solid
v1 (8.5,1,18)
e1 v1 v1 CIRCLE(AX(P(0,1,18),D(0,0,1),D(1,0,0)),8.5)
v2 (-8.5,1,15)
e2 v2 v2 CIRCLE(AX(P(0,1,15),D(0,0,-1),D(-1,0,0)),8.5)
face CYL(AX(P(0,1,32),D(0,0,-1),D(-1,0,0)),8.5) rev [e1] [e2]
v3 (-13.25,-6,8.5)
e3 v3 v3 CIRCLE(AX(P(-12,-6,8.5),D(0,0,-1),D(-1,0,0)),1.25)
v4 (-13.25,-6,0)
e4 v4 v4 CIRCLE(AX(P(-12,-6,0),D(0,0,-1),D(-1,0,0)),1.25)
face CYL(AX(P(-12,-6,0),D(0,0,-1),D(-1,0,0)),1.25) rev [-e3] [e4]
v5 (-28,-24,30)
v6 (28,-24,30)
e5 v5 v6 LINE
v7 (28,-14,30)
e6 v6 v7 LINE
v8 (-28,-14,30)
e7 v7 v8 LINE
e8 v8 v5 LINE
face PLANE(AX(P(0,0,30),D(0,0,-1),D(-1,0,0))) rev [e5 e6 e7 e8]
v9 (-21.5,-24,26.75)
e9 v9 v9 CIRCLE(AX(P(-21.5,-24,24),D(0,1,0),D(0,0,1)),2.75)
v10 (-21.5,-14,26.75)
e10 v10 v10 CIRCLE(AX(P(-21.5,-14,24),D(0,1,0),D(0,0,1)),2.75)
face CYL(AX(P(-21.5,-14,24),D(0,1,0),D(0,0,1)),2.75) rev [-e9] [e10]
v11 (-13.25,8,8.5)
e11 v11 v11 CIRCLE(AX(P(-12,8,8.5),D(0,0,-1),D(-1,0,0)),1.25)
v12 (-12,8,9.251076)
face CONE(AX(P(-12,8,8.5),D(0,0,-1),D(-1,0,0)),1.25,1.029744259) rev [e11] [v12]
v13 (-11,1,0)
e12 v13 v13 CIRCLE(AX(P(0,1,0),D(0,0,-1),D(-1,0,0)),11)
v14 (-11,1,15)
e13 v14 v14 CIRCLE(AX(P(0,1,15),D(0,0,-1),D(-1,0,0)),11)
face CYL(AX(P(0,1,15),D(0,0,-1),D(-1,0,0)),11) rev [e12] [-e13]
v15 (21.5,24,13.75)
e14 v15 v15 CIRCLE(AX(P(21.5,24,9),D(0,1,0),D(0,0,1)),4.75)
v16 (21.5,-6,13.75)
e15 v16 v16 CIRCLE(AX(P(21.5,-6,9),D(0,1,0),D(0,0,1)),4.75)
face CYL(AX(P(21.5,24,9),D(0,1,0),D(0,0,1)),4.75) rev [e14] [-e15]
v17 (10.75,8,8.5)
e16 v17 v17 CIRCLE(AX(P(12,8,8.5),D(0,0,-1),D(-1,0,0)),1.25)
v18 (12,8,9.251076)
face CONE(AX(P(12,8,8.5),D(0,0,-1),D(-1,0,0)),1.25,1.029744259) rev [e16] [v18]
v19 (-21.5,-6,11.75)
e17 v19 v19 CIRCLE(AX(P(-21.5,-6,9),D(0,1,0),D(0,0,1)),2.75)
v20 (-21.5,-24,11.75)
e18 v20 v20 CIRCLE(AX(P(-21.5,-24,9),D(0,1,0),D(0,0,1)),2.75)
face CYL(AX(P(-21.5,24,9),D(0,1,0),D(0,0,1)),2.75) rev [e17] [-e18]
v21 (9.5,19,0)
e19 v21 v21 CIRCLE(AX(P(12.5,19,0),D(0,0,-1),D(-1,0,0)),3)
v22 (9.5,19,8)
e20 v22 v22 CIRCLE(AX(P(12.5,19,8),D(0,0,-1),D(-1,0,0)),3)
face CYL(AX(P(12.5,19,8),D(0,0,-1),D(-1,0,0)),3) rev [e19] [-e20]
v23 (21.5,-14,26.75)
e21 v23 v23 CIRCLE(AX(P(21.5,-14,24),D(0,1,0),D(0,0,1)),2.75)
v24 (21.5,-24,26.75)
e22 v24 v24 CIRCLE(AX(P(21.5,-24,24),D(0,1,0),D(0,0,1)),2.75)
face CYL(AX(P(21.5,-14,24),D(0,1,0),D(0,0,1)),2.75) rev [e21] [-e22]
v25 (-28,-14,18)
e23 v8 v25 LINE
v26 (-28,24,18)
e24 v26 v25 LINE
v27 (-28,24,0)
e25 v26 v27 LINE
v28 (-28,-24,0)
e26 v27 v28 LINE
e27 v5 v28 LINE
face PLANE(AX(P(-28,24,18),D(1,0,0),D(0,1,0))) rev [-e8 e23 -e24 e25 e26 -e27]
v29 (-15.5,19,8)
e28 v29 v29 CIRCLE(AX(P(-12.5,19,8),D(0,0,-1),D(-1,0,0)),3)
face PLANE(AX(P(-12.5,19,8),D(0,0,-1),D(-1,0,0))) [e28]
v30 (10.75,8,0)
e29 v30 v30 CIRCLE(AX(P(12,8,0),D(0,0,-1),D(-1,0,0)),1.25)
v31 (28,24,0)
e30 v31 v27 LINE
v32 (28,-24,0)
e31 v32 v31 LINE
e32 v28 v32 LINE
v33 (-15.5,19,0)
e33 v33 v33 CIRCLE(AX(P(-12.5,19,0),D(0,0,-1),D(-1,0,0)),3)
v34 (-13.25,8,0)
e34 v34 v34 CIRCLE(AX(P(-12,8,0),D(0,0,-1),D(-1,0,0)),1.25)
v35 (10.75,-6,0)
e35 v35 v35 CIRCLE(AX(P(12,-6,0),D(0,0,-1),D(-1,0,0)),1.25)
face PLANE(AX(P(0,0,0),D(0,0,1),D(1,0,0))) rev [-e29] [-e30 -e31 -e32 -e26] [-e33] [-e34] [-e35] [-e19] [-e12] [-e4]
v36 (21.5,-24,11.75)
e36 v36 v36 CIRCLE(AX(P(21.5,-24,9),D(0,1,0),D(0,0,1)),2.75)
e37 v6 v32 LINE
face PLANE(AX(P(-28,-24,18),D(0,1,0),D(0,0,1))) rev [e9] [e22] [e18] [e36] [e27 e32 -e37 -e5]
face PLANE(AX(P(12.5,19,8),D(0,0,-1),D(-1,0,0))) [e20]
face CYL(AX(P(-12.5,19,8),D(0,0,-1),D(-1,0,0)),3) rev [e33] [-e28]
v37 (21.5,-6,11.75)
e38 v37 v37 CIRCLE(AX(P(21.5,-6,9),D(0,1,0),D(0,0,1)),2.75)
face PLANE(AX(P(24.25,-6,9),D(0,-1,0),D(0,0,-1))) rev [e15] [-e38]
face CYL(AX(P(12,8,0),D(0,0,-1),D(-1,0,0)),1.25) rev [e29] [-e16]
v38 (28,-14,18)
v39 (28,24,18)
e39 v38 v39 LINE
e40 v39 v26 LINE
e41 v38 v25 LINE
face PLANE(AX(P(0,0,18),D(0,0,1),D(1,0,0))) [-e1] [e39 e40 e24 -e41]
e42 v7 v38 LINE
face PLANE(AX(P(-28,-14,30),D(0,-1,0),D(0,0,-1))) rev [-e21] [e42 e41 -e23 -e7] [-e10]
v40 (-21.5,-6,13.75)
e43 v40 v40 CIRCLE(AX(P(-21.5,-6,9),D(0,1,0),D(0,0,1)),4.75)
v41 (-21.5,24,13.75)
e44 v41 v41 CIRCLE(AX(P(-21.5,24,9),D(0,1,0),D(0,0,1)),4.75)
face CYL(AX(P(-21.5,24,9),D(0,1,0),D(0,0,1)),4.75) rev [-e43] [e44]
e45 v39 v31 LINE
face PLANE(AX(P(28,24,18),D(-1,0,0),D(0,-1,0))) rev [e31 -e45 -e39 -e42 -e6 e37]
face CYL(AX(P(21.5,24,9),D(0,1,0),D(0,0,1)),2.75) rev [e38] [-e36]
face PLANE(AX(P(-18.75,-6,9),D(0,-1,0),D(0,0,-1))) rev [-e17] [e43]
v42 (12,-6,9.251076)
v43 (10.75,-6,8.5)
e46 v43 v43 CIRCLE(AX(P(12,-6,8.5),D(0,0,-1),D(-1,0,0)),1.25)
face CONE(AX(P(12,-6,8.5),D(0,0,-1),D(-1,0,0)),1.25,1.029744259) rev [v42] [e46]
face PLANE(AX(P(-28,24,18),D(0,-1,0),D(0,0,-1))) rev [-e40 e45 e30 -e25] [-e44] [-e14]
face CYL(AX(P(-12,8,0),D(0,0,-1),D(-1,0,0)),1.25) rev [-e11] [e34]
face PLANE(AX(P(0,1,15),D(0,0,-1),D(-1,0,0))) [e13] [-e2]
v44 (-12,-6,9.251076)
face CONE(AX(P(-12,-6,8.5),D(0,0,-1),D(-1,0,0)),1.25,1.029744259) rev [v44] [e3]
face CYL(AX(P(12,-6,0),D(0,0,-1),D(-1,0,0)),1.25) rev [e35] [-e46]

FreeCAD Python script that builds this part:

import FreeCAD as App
import Part
import Sketcher
Q = App.Units.Quantity

doc = App.newDocument("Part")
body = doc.addObject("PartDesign::Body", "Body")

sketch1 = body.newObject("Sketcher::SketchObject", "Sketch")
sketch1.AttachmentSupport = (doc.getObject("XY_Plane"), [""])
sketch1.MapMode = "FlatFace"
sketch1.addGeometry([
    Part.LineSegment(App.Vector(-28, 24, 0), App.Vector(-28, -24, 0)),
    Part.LineSegment(App.Vector(-28, -24, 0), App.Vector(28, -24, 0)),
    Part.LineSegment(App.Vector(28, -24, 0), App.Vector(28, 24, 0)),
    Part.LineSegment(App.Vector(28, 24, 0), App.Vector(-28, 24, 0)),
], False)
sketch1.addConstraint([
    Sketcher.Constraint("Coincident", 0, 2, 1, 1),
    Sketcher.Constraint("Coincident", 1, 2, 2, 1),
    Sketcher.Constraint("Coincident", 2, 2, 3, 1),
    Sketcher.Constraint("Coincident", 3, 2, 0, 1),
    Sketcher.Constraint("Vertical", 0),
    Sketcher.Constraint("Horizontal", 1),
    Sketcher.Constraint("Vertical", 2),
    Sketcher.Constraint("Horizontal", 3),
    Sketcher.Constraint("Symmetric", 0, 2, 2, 2, -1, 1),
    Sketcher.Constraint("DistanceX", 1, 1, 1, 2, Q("56 mm")),
    Sketcher.Constraint("DistanceY", 0, 2, 0, 1, Q("48 mm")),
])
pad1 = body.newObject("PartDesign::Pad", "Pad")
pad1.Profile = sketch1
pad1.Length = 18

sketch2 = body.newObject("Sketcher::SketchObject", "Sketch001")
sketch2.AttachmentSupport = (doc.getObject("XY_Plane"), [""])
sketch2.MapMode = "FlatFace"
sketch2.addGeometry(Part.Circle(App.Vector(0, 1, 0), App.Vector(0, 0, 1), 11), False)
sketch2.addConstraint([
    Sketcher.Constraint("PointOnObject", 0, 3, -2),
    Sketcher.Constraint("Diameter", 0, Q("22 mm")),
    Sketcher.Constraint("DistanceY", -1, 1, 0, 3, Q("1 mm")),
])
pocket1 = body.newObject("PartDesign::Pocket", "Pocket")
pocket1.Profile = sketch2
pocket1.Length = 15
pocket1.Reversed = True

sketch3 = body.newObject("Sketcher::SketchObject", "Sketch002")
sketch3.AttachmentSupport = (doc.getObject("XY_Plane"), [""])
sketch3.MapMode = "FlatFace"
sketch3.AttachmentOffset = App.Placement(App.Vector(0, 0, 15), App.Rotation())
sketch3.addGeometry(Part.Circle(App.Vector(0, 1, 0), App.Vector(0, 0, 1), 8), False)
sketch3.addConstraint([
    Sketcher.Constraint("PointOnObject", 0, 3, -2),
    Sketcher.Constraint("Diameter", 0, Q("17 mm")),
    Sketcher.Constraint("DistanceY", -1, 1, 0, 3, Q("1 mm")),
])
pocket2 = body.newObject("PartDesign::Pocket", "Pocket001")
pocket2.Profile = sketch3
pocket2.Length = 17
pocket2.Reversed = True

sketch4 = body.newObject("Sketcher::SketchObject", "Sketch003")
sketch4.AttachmentSupport = (doc.getObject("XY_Plane"), [""])
sketch4.MapMode = "FlatFace"
sketch4.addGeometry([
    Part.Circle(App.Vector(-12, 8, 0), App.Vector(0, 0, 1), 1.2),
    Part.Circle(App.Vector(12, 8, 0), App.Vector(0, 0, 1), 1.2),
    Part.Circle(App.Vector(-12, -6, 0), App.Vector(0, 0, 1), 1.2),
    Part.Circle(App.Vector(12, -6, 0), App.Vector(0, 0, 1), 1.2),
], False)
sketch4.addConstraint([
    Sketcher.Constraint("Equal", 0, 1),
    Sketcher.Constraint("Equal", 1, 2),
    Sketcher.Constraint("Equal", 2, 3),
    Sketcher.Constraint("Symmetric", 0, 3, 1, 3, -2),
    Sketcher.Constraint("Symmetric", 2, 3, 3, 3, -2),
    Sketcher.Constraint("Vertical", 0, 3, 2, 3),
    Sketcher.Constraint("Diameter", 0, Q("2.5 mm")),
    Sketcher.Constraint("DistanceX", 0, 3, -1, 1, Q("12 mm")),
    Sketcher.Constraint("DistanceY", -1, 1, 0, 3, Q("8 mm")),
    Sketcher.Constraint("DistanceY", 2, 3, -1, 1, Q("6 mm")),
])
doc.recompute()
hole = body.newObject("PartDesign::Hole", "Hole")
hole.Profile = sketch4
hole.ThreadType = "None"
hole.Diameter = 2.5
hole.DepthType = "Dimension"
hole.Depth = 8.5
hole.DrillPoint = "Angled"
hole.DrillPointAngle = 118
hole.Reversed = True

sketch5 = body.newObject("Sketcher::SketchObject", "Sketch004")
sketch5.AttachmentSupport = (doc.getObject("XZ_Plane"), [""])
sketch5.MapMode = "FlatFace"
sketch5.AttachmentOffset = App.Placement(App.Vector(0, 0, -24), App.Rotation())
sketch5.addGeometry([
    Part.Circle(App.Vector(-21.5, 9, 0), App.Vector(0, 0, 1), 2.8),
    Part.Circle(App.Vector(21.5, 9, 0), App.Vector(0, 0, 1), 2.8),
], False)
sketch5.addConstraint([
    Sketcher.Constraint("Equal", 0, 1),
    Sketcher.Constraint("Symmetric", 0, 3, 1, 3, -2),
    Sketcher.Constraint("Diameter", 0, Q("5.5 mm")),
    Sketcher.Constraint("DistanceY", -1, 1, 0, 3, Q("9 mm")),
    Sketcher.Constraint("DistanceX", 0, 3, 1, 3, Q("43 mm")),
])
doc.recompute()
hole2 = body.newObject("PartDesign::Hole", "Hole001")
hole2.Profile = sketch5
hole2.ThreadType = "None"
hole2.Diameter = 5.5
hole2.DepthType = "ThroughAll"
hole2.HoleCutType = "Counterbore"
hole2.HoleCutDiameter = 9.5
hole2.HoleCutDepth = 30
hole2.Reversed = True

sketch6 = body.newObject("Sketcher::SketchObject", "Sketch005")
sketch6.AttachmentSupport = (doc.getObject("XY_Plane"), [""])
sketch6.MapMode = "FlatFace"
sketch6.AttachmentOffset = App.Placement(App.Vector(0, 0, 18), App.Rotation())
sketch6.addGeometry([
    Part.LineSegment(App.Vector(-28, -14, 0), App.Vector(-28, -24, 0)),
    Part.LineSegment(App.Vector(-28, -24, 0), App.Vector(28, -24, 0)),
    Part.LineSegment(App.Vector(28, -24, 0), App.Vector(28, -14, 0)),
    Part.LineSegment(App.Vector(28, -14, 0), App.Vector(-28, -14, 0)),
], False)
sketch6.addConstraint([
    Sketcher.Constraint("Coincident", 0, 2, 1, 1),
    Sketcher.Constraint("Coincident", 1, 2, 2, 1),
    Sketcher.Constraint("Coincident", 2, 2, 3, 1),
    Sketcher.Constraint("Coincident", 3, 2, 0, 1),
    Sketcher.Constraint("Vertical", 0),
    Sketcher.Constraint("Horizontal", 1),
    Sketcher.Constraint("Vertical", 2),
    Sketcher.Constraint("Horizontal", 3),
    Sketcher.Constraint("DistanceX", 1, 1, 1, 2, Q("56 mm")),
    Sketcher.Constraint("DistanceY", 0, 2, 0, 1, Q("10 mm")),
    Sketcher.Constraint("DistanceX", 0, 2, -1, 1, Q("28 mm")),
    Sketcher.Constraint("DistanceY", 0, 2, -1, 1, Q("24 mm")),
])
pad2 = body.newObject("PartDesign::Pad", "Pad001")
pad2.Profile = sketch6
pad2.Length = 12

sketch7 = body.newObject("Sketcher::SketchObject", "Sketch006")
sketch7.AttachmentSupport = (doc.getObject("XZ_Plane"), [""])
sketch7.MapMode = "FlatFace"
sketch7.AttachmentOffset = App.Placement(App.Vector(0, 0, 14), App.Rotation())
sketch7.addGeometry([
    Part.Circle(App.Vector(-21.5, 24, 0), App.Vector(0, 0, 1), 2.8),
    Part.Circle(App.Vector(21.5, 24, 0), App.Vector(0, 0, 1), 2.8),
], False)
sketch7.addConstraint([
    Sketcher.Constraint("Equal", 0, 1),
    Sketcher.Constraint("Symmetric", 0, 3, 1, 3, -2),
    Sketcher.Constraint("Diameter", 0, Q("5.5 mm")),
    Sketcher.Constraint("DistanceY", -1, 1, 0, 3, Q("24 mm")),
    Sketcher.Constraint("DistanceX", 0, 3, 1, 3, Q("43 mm")),
])
doc.recompute()
hole3 = body.newObject("PartDesign::Hole", "Hole002")
hole3.Profile = sketch7
hole3.ThreadType = "None"
hole3.Diameter = 5.5
hole3.DepthType = "ThroughAll"
hole3.Reversed = True

sketch8 = body.newObject("Sketcher::SketchObject", "Sketch007")
sketch8.AttachmentSupport = (doc.getObject("XY_Plane"), [""])
sketch8.MapMode = "FlatFace"
sketch8.addGeometry([
    Part.Circle(App.Vector(12.5, 19, 0), App.Vector(0, 0, 1), 3),
    Part.Circle(App.Vector(-12.5, 19, 0), App.Vector(0, 0, 1), 3),
], False)
sketch8.addConstraint([
    Sketcher.Constraint("Equal", 0, 1),
    Sketcher.Constraint("Symmetric", 0, 3, 1, 3, -2),
    Sketcher.Constraint("Diameter", 0, Q("6 mm")),
    Sketcher.Constraint("DistanceY", -1, 1, 0, 3, Q("19 mm")),
    Sketcher.Constraint("DistanceX", 1, 3, 0, 3, Q("25 mm")),
])
pocket3 = body.newObject("PartDesign::Pocket", "Pocket002")
pocket3.Profile = sketch8
pocket3.Length = 8
pocket3.Reversed = True

doc.recompute()
